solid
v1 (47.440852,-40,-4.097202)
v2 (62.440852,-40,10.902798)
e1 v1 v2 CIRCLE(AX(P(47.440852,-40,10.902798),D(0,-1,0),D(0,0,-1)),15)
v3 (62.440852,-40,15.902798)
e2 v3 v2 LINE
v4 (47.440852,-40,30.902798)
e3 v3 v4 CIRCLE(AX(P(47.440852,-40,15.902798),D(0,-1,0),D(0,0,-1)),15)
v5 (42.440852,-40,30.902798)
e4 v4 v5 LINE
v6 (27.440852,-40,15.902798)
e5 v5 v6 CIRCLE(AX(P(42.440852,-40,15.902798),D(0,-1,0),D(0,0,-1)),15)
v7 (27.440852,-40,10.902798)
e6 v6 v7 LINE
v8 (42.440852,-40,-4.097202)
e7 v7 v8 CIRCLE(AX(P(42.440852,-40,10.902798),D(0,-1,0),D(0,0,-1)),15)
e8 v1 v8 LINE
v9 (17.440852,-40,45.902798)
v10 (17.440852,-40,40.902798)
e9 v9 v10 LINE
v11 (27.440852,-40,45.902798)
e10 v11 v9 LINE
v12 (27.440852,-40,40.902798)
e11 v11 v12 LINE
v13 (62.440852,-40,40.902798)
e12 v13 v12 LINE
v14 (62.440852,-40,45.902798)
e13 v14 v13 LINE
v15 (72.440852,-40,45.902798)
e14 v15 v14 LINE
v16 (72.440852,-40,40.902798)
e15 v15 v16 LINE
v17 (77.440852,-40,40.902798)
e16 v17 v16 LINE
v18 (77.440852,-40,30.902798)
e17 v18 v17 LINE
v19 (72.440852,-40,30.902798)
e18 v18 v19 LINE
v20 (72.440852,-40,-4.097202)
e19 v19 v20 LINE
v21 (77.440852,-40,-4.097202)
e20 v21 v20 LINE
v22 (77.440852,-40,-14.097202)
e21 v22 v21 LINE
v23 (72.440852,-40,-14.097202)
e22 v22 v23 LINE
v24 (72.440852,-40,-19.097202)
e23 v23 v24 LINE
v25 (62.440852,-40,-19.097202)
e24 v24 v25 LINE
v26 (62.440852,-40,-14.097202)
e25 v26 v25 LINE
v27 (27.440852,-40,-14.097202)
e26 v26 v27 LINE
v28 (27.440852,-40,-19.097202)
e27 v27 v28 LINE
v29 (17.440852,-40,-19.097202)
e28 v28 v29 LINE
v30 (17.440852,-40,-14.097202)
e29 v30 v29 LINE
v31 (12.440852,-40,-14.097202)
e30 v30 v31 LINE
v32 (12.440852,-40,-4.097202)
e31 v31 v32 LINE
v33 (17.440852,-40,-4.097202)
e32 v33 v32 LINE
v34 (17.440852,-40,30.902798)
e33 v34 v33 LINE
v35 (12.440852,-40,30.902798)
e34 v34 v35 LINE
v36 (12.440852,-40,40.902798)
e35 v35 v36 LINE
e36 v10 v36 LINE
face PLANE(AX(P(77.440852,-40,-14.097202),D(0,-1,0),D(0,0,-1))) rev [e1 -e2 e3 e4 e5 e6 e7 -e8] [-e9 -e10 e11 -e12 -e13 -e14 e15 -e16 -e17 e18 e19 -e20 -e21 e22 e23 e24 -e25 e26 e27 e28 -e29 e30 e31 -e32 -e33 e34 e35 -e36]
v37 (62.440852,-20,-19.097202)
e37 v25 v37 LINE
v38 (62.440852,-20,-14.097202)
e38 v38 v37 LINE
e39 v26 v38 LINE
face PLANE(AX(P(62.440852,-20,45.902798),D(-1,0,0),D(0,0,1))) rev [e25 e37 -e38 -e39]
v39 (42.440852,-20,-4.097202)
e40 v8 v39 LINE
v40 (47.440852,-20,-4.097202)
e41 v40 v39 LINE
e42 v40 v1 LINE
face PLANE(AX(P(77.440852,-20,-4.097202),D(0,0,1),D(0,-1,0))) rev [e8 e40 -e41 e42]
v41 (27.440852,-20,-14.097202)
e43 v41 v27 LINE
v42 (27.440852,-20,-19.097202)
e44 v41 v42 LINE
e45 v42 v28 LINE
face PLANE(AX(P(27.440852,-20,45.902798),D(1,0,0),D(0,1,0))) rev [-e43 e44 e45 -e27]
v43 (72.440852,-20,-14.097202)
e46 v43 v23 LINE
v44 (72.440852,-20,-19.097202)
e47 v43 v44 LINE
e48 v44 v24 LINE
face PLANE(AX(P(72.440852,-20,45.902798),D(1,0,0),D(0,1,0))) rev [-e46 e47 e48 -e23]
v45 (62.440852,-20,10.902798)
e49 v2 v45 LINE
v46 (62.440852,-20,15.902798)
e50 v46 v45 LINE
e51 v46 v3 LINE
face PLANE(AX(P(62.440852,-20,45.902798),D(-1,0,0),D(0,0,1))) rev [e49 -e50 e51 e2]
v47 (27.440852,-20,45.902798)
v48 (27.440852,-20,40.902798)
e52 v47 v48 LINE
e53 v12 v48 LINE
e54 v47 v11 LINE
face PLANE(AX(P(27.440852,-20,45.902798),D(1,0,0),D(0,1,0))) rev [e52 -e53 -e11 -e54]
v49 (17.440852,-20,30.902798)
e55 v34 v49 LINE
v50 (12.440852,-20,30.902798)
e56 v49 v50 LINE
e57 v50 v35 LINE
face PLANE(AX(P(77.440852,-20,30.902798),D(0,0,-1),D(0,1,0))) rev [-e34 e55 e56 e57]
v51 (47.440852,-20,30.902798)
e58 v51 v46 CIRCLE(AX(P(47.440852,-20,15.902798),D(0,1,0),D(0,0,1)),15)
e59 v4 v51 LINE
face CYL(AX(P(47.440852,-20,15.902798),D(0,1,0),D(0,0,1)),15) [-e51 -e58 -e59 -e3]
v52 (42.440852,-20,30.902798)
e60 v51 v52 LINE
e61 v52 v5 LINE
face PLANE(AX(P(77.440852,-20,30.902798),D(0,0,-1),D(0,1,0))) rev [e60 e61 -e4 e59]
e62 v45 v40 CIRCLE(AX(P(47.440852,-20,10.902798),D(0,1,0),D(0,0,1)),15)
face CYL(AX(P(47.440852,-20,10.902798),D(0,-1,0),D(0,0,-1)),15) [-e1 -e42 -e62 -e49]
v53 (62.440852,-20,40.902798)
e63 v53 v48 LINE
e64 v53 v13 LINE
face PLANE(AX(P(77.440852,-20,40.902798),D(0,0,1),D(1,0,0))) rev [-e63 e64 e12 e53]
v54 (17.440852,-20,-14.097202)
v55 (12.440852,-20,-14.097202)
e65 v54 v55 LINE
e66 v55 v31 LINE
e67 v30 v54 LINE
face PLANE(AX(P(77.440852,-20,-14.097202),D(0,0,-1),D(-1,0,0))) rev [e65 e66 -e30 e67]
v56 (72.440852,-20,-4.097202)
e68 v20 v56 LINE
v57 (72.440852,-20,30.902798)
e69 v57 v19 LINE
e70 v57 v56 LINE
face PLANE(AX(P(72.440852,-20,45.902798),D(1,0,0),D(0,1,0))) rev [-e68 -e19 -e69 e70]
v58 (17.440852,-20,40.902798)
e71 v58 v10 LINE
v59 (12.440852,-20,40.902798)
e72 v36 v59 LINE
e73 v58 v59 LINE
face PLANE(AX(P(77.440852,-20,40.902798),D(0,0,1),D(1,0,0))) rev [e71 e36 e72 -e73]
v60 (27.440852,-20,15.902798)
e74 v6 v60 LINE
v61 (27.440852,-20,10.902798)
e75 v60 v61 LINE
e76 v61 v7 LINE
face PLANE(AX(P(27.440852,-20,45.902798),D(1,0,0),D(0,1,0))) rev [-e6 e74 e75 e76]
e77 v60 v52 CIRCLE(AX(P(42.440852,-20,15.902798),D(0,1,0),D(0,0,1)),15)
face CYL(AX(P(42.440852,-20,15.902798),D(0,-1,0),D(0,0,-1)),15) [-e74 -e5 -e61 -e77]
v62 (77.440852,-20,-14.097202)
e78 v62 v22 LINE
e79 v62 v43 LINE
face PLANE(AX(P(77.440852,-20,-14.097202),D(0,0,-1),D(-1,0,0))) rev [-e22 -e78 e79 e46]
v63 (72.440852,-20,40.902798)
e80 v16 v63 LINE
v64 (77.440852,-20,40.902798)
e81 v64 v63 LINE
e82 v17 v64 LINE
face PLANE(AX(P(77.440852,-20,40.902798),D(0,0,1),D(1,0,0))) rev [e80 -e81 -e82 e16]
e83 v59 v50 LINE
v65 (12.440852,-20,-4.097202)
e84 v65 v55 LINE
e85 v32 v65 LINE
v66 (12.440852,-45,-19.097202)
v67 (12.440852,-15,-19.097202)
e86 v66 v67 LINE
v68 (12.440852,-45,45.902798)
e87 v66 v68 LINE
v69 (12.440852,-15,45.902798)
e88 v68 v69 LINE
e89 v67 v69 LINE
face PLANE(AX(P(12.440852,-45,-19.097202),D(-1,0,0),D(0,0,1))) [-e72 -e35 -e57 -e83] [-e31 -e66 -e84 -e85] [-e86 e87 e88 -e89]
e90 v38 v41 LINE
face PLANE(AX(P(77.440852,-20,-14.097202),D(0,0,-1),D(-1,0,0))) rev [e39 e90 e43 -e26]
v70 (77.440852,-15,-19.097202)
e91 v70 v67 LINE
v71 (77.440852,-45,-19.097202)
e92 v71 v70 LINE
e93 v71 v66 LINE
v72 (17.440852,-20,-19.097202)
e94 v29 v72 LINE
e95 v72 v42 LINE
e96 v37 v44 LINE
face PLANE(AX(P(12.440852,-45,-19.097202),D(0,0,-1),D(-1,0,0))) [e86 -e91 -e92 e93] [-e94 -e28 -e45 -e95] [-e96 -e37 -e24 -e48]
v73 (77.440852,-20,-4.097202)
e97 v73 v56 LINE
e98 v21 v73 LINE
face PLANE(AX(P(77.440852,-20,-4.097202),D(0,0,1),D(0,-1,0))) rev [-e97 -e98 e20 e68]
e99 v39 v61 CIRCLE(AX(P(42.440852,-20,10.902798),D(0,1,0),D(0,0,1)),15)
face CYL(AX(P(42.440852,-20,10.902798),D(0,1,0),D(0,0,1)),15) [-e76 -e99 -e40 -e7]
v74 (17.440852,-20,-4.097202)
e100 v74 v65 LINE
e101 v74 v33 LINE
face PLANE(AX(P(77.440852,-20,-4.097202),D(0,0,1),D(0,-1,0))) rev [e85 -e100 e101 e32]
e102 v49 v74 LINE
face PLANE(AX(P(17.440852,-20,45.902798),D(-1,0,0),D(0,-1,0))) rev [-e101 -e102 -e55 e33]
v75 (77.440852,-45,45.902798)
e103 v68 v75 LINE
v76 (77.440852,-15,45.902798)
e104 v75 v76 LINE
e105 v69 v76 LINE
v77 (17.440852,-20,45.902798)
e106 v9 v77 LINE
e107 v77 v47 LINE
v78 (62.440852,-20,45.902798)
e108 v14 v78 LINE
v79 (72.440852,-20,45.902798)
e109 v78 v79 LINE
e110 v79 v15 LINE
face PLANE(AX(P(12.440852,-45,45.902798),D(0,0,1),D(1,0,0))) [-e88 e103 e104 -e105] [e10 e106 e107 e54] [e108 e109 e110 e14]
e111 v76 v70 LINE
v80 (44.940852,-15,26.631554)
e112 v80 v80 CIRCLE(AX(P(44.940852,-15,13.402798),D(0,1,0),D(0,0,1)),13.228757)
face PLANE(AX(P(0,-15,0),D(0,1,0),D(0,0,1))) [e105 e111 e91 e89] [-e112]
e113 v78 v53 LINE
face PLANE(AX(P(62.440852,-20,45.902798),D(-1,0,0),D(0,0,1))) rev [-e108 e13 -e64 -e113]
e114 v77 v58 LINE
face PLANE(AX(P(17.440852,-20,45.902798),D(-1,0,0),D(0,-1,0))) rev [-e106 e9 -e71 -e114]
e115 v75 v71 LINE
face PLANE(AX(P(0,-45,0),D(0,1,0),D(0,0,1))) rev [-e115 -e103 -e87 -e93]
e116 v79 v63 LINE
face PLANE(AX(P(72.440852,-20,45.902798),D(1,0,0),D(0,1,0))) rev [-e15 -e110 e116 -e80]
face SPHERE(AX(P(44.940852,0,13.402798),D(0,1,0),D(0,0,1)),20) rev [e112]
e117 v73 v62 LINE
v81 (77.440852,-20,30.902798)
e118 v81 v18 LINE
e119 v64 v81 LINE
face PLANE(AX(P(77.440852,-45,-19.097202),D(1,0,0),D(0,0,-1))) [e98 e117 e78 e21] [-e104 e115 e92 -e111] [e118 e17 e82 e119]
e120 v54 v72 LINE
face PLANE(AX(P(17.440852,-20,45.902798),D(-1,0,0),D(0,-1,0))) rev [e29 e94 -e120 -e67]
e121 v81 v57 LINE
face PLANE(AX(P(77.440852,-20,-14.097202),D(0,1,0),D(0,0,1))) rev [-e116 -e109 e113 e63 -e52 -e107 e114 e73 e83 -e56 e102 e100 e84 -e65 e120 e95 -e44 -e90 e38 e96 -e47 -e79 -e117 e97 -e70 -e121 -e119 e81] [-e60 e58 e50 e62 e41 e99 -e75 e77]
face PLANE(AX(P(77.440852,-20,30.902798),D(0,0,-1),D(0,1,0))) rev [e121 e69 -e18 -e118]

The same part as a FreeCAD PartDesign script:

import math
import FreeCAD as App
import Part
import Sketcher
from FreeCAD import Vector


def edges_at(feature, points):
    """Names of the edges that pass closest to the given points."""
    edges = feature.Shape.Edges
    near = lambda p: min(range(len(edges)), key=lambda i: edges[i].distToShape(Part.Vertex(*p))[0])
    return sorted({f"Edge{near(p) + 1}" for p in points})

doc = App.newDocument("Part")
body = doc.addObject("PartDesign::Body", "Body")

# Sketch on XZ plane
sketch1 = body.newObject("Sketcher::SketchObject", "Sketch")
sketch1.AttachmentSupport = (doc.getObject("XZ_Plane"), [""])
sketch1.MapMode = "FlatFace"
sketch1.addGeometry([
    Part.LineSegment(Vector(12.440852, -19.097202, 0), Vector(12.440852, 45.902798, 0)),
    Part.LineSegment(Vector(12.440852, 45.902798, 0), Vector(77.440852, 45.902798, 0)),
    Part.LineSegment(Vector(77.440852, 45.902798, 0), Vector(77.440852, -19.097202, 0)),
    Part.LineSegment(Vector(77.440852, -19.097202, 0), Vector(12.440852, -19.097202, 0)),
], False)
sketch1.addConstraint([
    Sketcher.Constraint("Coincident", 0, 2, 1, 1),
    Sketcher.Constraint("Coincident", 1, 2, 2, 1),
    Sketcher.Constraint("Coincident", 2, 2, 3, 1),
    Sketcher.Constraint("Coincident", 3, 2, 0, 1),
    Sketcher.Constraint("Vertical", 0),
    Sketcher.Constraint("Horizontal", 1),
    Sketcher.Constraint("Vertical", 2),
    Sketcher.Constraint("Horizontal", 3),
    Sketcher.Constraint("Equal", 3, 0),
    Sketcher.Constraint("DistanceX", 1, 1, 1, 2, 65.0),
    Sketcher.Constraint("DistanceX", -1, 1, 0, 2, 12.440852),
    Sketcher.Constraint("DistanceY", -1, 1, 0, 2, 45.902798),
])
pad1 = body.newObject("PartDesign::Pad", "Pad")
pad1.Profile = sketch1
pad1.Length = 45

# Sketch on XZ plane
sketch2 = body.newObject("Sketcher::SketchObject", "Sketch001")
sketch2.AttachmentSupport = (doc.getObject("XZ_Plane"), [""])
sketch2.MapMode = "FlatFace"
sketch2.addGeometry([
    Part.LineSegment(Vector(24.940852, 13.402798, 0), Vector(64.940852, 13.402798, 0)),
    Part.ArcOfCircle(Part.Circle(Vector(44.940852, 13.402798, 0), Vector(0, 0, 1), 20), math.radians(180), math.radians(360)),
], False)
sketch2.addGeometry(Part.LineSegment(Vector(24.940852, 13.402798, 0), Vector(64.940852, 13.402798, 0)), True)  # axis
sketch2.addConstraint([
    Sketcher.Constraint("Coincident", 0, 1, 1, 1),
    Sketcher.Constraint("Coincident", 1, 2, 0, 2),
    Sketcher.Constraint("Horizontal", 0),
    Sketcher.Constraint("Horizontal", 2),
    Sketcher.Constraint("Coincident", 2, 1, 0, 1),
    Sketcher.Constraint("Horizontal", 1, 3, 0, 1),
    Sketcher.Constraint("Equal", 0, 2),
    Sketcher.Constraint("Radius", 1, 20.0),
    Sketcher.Constraint("DistanceX", -1, 1, 1, 3, 44.940852),
    Sketcher.Constraint("DistanceY", -1, 1, 1, 3, 13.402798),
])
groove = body.newObject("PartDesign::Groove", "Groove")
groove.Profile = sketch2
groove.ReferenceAxis = (sketch2, ["Axis0"])
groove.Angle = 360

# Sketch on XZ plane
sketch3 = body.newObject("Sketcher::SketchObject", "Sketch002")
sketch3.AttachmentSupport = (doc.getObject("XZ_Plane"), [""])
sketch3.MapMode = "FlatFace"
sketch3.addGeometry([
    Part.LineSegment(Vector(12.440852, -19.097202, 0), Vector(12.440852, 45.902798, 0)),
    Part.LineSegment(Vector(12.440852, 45.902798, 0), Vector(77.440852, 45.902798, 0)),
    Part.LineSegment(Vector(77.440852, 45.902798, 0), Vector(77.440852, -19.097202, 0)),
    Part.LineSegment(Vector(77.440852, -19.097202, 0), Vector(12.440852, -19.097202, 0)),
], False)
sketch3.addConstraint([
    Sketcher.Constraint("Coincident", 0, 2, 1, 1),
    Sketcher.Constraint("Coincident", 1, 2, 2, 1),
    Sketcher.Constraint("Coincident", 2, 2, 3, 1),
    Sketcher.Constraint("Coincident", 3, 2, 0, 1),
    Sketcher.Constraint("Vertical", 0),
    Sketcher.Constraint("Horizontal", 1),
    Sketcher.Constraint("Vertical", 2),
    Sketcher.Constraint("Horizontal", 3),
    Sketcher.Constraint("Equal", 3, 0),
    Sketcher.Constraint("DistanceX", 1, 1, 1, 2, 65.0),
    Sketcher.Constraint("DistanceX", -1, 1, 0, 2, 12.440852),
    Sketcher.Constraint("DistanceY", -1, 1, 0, 2, 45.902798),
])
pocket1 = body.newObject("PartDesign::Pocket", "Pocket")
pocket1.Profile = sketch3
pocket1.Length = 15
pocket1.Reversed = True

# Sketch on YZ plane
sketch4 = body.newObject("Sketcher::SketchObject", "Sketch003")
sketch4.AttachmentSupport = (doc.getObject("YZ_Plane"), [""])
sketch4.MapMode = "FlatFace"
sketch4.AttachmentOffset = App.Placement(Vector(0, 0, 12.440852), App.Rotation())
sketch4.addGeometry([
    Part.LineSegment(Vector(-20, -14.097202, 0), Vector(-40, -14.097202, 0)),  # 0
    Part.LineSegment(Vector(-40, -14.097202, 0), Vector(-40, -4.097202, 0)),  # 1
    Part.LineSegment(Vector(-40, -4.097202, 0), Vector(-20, -4.097202, 0)),  # 2
    Part.LineSegment(Vector(-20, -4.097202, 0), Vector(-20, -14.097202, 0)),  # 3
    Part.LineSegment(Vector(-20, 30.902798, 0), Vector(-40, 30.902798, 0)),  # 4
    Part.LineSegment(Vector(-40, 30.902798, 0), Vector(-40, 40.902798, 0)),  # 5
    Part.LineSegment(Vector(-40, 40.902798, 0), Vector(-20, 40.902798, 0)),  # 6
    Part.LineSegment(Vector(-20, 40.902798, 0), Vector(-20, 30.902798, 0)),  # 7
], False)
sketch4.addConstraint([
    Sketcher.Constraint("Coincident", 0, 2, 1, 1),
    Sketcher.Constraint("Coincident", 1, 2, 2, 1),
    Sketcher.Constraint("Coincident", 2, 2, 3, 1),
    Sketcher.Constraint("Coincident", 3, 2, 0, 1),
    Sketcher.Constraint("Coincident", 4, 2, 5, 1),
    Sketcher.Constraint("Coincident", 5, 2, 6, 1),
    Sketcher.Constraint("Coincident", 6, 2, 7, 1),
    Sketcher.Constraint("Coincident", 7, 2, 4, 1),
    Sketcher.Constraint("Horizontal", 0),
    Sketcher.Constraint("Vertical", 1),
    Sketcher.Constraint("Horizontal", 2),
    Sketcher.Constraint("Vertical", 3),
    Sketcher.Constraint("Horizontal", 4),
    Sketcher.Constraint("Vertical", 5),
    Sketcher.Constraint("Horizontal", 6),
    Sketcher.Constraint("Vertical", 7),
    Sketcher.Constraint("Vertical", 1, 2, 4, 2),
    Sketcher.Constraint("Vertical", 3, 2, 6, 2),
    Sketcher.Constraint("Equal", 3, 5),
    Sketcher.Constraint("DistanceX", 0, 2, 0, 1, 20.0),
    Sketcher.Constraint("DistanceY", 1, 1, 1, 2, 10.0),
    Sketcher.Constraint("DistanceX", 0, 2, -1, 1, 40.0),
    Sketcher.Constraint("DistanceY", 1, 2, 4, 2, 35.0),
    Sketcher.Constraint("DistanceY", 0, 2, -1, 1, 14.097202),
])
pocket2 = body.newObject("PartDesign::Pocket", "Pocket001")
pocket2.Profile = sketch4
pocket2.Type = "ThroughAll"
pocket2.Reversed = True

# Sketch on XY plane
sketch5 = body.newObject("Sketcher::SketchObject", "Sketch004")
sketch5.AttachmentSupport = (doc.getObject("XY_Plane"), [""])
sketch5.MapMode = "FlatFace"
sketch5.AttachmentOffset = App.Placement(Vector(0, 0, -19.097202), App.Rotation())
sketch5.addGeometry([
    Part.LineSegment(Vector(72.440852, -20, 0), Vector(72.440852, -40, 0)),  # 0
    Part.LineSegment(Vector(72.440852, -40, 0), Vector(62.440852, -40, 0)),  # 1
    Part.LineSegment(Vector(62.440852, -40, 0), Vector(62.440852, -20, 0)),  # 2
    Part.LineSegment(Vector(62.440852, -20, 0), Vector(72.440852, -20, 0)),  # 3
    Part.LineSegment(Vector(27.440852, -20, 0), Vector(27.440852, -40, 0)),  # 4
    Part.LineSegment(Vector(27.440852, -40, 0), Vector(17.440852, -40, 0)),  # 5
    Part.LineSegment(Vector(17.440852, -40, 0), Vector(17.440852, -20, 0)),  # 6
    Part.LineSegment(Vector(17.440852, -20, 0), Vector(27.440852, -20, 0)),  # 7
], False)
sketch5.addConstraint([
    Sketcher.Constraint("Coincident", 0, 2, 1, 1),
    Sketcher.Constraint("Coincident", 1, 2, 2, 1),
    Sketcher.Constraint("Coincident", 2, 2, 3, 1),
    Sketcher.Constraint("Coincident", 3, 2, 0, 1),
    Sketcher.Constraint("Coincident", 4, 2, 5, 1),
    Sketcher.Constraint("Coincident", 5, 2, 6, 1),
    Sketcher.Constraint("Coincident", 6, 2, 7, 1),
    Sketcher.Constraint("Coincident", 7, 2, 4, 1),
    Sketcher.Constraint("Vertical", 0),
    Sketcher.Constraint("Horizontal", 1),
    Sketcher.Constraint("Vertical", 2),
    Sketcher.Constraint("Horizontal", 3),
    Sketcher.Constraint("Vertical", 4),
    Sketcher.Constraint("Horizontal", 5),
    Sketcher.Constraint("Vertical", 6),
    Sketcher.Constraint("Horizontal", 7),
    Sketcher.Constraint("Horizontal", 1, 2, 4, 2),
    Sketcher.Constraint("Horizontal", 3, 2, 6, 2),
    Sketcher.Constraint("Equal", 3, 5),
    Sketcher.Constraint("DistanceX", 1, 2, 1, 1, 10.0),
    Sketcher.Constraint("DistanceY", 0, 2, 0, 1, 20.0),
    Sketcher.Constraint("DistanceY", 0, 2, -1, 1, 40.0),
    Sketcher.Constraint("DistanceX", 4, 2, 1, 2, 35.0),
    Sketcher.Constraint("DistanceX", -1, 1, 0, 2, 72.440852),
])
pocket3 = body.newObject("PartDesign::Pocket", "Pocket002")
pocket3.Profile = sketch5
pocket3.Type = "ThroughAll"
pocket3.Reversed = True
doc.recompute()

fillet = body.newObject("PartDesign::Fillet", "Fillet")
fillet.Base = (pocket3, edges_at(pocket3, [
    (27.441, -30, 30.903),
    (27.441, -30, -4.097),
    (62.441, -30, 30.903),
    (62.441, -30, -4.097),
]))
fillet.Radius = 15

doc.recompute()
